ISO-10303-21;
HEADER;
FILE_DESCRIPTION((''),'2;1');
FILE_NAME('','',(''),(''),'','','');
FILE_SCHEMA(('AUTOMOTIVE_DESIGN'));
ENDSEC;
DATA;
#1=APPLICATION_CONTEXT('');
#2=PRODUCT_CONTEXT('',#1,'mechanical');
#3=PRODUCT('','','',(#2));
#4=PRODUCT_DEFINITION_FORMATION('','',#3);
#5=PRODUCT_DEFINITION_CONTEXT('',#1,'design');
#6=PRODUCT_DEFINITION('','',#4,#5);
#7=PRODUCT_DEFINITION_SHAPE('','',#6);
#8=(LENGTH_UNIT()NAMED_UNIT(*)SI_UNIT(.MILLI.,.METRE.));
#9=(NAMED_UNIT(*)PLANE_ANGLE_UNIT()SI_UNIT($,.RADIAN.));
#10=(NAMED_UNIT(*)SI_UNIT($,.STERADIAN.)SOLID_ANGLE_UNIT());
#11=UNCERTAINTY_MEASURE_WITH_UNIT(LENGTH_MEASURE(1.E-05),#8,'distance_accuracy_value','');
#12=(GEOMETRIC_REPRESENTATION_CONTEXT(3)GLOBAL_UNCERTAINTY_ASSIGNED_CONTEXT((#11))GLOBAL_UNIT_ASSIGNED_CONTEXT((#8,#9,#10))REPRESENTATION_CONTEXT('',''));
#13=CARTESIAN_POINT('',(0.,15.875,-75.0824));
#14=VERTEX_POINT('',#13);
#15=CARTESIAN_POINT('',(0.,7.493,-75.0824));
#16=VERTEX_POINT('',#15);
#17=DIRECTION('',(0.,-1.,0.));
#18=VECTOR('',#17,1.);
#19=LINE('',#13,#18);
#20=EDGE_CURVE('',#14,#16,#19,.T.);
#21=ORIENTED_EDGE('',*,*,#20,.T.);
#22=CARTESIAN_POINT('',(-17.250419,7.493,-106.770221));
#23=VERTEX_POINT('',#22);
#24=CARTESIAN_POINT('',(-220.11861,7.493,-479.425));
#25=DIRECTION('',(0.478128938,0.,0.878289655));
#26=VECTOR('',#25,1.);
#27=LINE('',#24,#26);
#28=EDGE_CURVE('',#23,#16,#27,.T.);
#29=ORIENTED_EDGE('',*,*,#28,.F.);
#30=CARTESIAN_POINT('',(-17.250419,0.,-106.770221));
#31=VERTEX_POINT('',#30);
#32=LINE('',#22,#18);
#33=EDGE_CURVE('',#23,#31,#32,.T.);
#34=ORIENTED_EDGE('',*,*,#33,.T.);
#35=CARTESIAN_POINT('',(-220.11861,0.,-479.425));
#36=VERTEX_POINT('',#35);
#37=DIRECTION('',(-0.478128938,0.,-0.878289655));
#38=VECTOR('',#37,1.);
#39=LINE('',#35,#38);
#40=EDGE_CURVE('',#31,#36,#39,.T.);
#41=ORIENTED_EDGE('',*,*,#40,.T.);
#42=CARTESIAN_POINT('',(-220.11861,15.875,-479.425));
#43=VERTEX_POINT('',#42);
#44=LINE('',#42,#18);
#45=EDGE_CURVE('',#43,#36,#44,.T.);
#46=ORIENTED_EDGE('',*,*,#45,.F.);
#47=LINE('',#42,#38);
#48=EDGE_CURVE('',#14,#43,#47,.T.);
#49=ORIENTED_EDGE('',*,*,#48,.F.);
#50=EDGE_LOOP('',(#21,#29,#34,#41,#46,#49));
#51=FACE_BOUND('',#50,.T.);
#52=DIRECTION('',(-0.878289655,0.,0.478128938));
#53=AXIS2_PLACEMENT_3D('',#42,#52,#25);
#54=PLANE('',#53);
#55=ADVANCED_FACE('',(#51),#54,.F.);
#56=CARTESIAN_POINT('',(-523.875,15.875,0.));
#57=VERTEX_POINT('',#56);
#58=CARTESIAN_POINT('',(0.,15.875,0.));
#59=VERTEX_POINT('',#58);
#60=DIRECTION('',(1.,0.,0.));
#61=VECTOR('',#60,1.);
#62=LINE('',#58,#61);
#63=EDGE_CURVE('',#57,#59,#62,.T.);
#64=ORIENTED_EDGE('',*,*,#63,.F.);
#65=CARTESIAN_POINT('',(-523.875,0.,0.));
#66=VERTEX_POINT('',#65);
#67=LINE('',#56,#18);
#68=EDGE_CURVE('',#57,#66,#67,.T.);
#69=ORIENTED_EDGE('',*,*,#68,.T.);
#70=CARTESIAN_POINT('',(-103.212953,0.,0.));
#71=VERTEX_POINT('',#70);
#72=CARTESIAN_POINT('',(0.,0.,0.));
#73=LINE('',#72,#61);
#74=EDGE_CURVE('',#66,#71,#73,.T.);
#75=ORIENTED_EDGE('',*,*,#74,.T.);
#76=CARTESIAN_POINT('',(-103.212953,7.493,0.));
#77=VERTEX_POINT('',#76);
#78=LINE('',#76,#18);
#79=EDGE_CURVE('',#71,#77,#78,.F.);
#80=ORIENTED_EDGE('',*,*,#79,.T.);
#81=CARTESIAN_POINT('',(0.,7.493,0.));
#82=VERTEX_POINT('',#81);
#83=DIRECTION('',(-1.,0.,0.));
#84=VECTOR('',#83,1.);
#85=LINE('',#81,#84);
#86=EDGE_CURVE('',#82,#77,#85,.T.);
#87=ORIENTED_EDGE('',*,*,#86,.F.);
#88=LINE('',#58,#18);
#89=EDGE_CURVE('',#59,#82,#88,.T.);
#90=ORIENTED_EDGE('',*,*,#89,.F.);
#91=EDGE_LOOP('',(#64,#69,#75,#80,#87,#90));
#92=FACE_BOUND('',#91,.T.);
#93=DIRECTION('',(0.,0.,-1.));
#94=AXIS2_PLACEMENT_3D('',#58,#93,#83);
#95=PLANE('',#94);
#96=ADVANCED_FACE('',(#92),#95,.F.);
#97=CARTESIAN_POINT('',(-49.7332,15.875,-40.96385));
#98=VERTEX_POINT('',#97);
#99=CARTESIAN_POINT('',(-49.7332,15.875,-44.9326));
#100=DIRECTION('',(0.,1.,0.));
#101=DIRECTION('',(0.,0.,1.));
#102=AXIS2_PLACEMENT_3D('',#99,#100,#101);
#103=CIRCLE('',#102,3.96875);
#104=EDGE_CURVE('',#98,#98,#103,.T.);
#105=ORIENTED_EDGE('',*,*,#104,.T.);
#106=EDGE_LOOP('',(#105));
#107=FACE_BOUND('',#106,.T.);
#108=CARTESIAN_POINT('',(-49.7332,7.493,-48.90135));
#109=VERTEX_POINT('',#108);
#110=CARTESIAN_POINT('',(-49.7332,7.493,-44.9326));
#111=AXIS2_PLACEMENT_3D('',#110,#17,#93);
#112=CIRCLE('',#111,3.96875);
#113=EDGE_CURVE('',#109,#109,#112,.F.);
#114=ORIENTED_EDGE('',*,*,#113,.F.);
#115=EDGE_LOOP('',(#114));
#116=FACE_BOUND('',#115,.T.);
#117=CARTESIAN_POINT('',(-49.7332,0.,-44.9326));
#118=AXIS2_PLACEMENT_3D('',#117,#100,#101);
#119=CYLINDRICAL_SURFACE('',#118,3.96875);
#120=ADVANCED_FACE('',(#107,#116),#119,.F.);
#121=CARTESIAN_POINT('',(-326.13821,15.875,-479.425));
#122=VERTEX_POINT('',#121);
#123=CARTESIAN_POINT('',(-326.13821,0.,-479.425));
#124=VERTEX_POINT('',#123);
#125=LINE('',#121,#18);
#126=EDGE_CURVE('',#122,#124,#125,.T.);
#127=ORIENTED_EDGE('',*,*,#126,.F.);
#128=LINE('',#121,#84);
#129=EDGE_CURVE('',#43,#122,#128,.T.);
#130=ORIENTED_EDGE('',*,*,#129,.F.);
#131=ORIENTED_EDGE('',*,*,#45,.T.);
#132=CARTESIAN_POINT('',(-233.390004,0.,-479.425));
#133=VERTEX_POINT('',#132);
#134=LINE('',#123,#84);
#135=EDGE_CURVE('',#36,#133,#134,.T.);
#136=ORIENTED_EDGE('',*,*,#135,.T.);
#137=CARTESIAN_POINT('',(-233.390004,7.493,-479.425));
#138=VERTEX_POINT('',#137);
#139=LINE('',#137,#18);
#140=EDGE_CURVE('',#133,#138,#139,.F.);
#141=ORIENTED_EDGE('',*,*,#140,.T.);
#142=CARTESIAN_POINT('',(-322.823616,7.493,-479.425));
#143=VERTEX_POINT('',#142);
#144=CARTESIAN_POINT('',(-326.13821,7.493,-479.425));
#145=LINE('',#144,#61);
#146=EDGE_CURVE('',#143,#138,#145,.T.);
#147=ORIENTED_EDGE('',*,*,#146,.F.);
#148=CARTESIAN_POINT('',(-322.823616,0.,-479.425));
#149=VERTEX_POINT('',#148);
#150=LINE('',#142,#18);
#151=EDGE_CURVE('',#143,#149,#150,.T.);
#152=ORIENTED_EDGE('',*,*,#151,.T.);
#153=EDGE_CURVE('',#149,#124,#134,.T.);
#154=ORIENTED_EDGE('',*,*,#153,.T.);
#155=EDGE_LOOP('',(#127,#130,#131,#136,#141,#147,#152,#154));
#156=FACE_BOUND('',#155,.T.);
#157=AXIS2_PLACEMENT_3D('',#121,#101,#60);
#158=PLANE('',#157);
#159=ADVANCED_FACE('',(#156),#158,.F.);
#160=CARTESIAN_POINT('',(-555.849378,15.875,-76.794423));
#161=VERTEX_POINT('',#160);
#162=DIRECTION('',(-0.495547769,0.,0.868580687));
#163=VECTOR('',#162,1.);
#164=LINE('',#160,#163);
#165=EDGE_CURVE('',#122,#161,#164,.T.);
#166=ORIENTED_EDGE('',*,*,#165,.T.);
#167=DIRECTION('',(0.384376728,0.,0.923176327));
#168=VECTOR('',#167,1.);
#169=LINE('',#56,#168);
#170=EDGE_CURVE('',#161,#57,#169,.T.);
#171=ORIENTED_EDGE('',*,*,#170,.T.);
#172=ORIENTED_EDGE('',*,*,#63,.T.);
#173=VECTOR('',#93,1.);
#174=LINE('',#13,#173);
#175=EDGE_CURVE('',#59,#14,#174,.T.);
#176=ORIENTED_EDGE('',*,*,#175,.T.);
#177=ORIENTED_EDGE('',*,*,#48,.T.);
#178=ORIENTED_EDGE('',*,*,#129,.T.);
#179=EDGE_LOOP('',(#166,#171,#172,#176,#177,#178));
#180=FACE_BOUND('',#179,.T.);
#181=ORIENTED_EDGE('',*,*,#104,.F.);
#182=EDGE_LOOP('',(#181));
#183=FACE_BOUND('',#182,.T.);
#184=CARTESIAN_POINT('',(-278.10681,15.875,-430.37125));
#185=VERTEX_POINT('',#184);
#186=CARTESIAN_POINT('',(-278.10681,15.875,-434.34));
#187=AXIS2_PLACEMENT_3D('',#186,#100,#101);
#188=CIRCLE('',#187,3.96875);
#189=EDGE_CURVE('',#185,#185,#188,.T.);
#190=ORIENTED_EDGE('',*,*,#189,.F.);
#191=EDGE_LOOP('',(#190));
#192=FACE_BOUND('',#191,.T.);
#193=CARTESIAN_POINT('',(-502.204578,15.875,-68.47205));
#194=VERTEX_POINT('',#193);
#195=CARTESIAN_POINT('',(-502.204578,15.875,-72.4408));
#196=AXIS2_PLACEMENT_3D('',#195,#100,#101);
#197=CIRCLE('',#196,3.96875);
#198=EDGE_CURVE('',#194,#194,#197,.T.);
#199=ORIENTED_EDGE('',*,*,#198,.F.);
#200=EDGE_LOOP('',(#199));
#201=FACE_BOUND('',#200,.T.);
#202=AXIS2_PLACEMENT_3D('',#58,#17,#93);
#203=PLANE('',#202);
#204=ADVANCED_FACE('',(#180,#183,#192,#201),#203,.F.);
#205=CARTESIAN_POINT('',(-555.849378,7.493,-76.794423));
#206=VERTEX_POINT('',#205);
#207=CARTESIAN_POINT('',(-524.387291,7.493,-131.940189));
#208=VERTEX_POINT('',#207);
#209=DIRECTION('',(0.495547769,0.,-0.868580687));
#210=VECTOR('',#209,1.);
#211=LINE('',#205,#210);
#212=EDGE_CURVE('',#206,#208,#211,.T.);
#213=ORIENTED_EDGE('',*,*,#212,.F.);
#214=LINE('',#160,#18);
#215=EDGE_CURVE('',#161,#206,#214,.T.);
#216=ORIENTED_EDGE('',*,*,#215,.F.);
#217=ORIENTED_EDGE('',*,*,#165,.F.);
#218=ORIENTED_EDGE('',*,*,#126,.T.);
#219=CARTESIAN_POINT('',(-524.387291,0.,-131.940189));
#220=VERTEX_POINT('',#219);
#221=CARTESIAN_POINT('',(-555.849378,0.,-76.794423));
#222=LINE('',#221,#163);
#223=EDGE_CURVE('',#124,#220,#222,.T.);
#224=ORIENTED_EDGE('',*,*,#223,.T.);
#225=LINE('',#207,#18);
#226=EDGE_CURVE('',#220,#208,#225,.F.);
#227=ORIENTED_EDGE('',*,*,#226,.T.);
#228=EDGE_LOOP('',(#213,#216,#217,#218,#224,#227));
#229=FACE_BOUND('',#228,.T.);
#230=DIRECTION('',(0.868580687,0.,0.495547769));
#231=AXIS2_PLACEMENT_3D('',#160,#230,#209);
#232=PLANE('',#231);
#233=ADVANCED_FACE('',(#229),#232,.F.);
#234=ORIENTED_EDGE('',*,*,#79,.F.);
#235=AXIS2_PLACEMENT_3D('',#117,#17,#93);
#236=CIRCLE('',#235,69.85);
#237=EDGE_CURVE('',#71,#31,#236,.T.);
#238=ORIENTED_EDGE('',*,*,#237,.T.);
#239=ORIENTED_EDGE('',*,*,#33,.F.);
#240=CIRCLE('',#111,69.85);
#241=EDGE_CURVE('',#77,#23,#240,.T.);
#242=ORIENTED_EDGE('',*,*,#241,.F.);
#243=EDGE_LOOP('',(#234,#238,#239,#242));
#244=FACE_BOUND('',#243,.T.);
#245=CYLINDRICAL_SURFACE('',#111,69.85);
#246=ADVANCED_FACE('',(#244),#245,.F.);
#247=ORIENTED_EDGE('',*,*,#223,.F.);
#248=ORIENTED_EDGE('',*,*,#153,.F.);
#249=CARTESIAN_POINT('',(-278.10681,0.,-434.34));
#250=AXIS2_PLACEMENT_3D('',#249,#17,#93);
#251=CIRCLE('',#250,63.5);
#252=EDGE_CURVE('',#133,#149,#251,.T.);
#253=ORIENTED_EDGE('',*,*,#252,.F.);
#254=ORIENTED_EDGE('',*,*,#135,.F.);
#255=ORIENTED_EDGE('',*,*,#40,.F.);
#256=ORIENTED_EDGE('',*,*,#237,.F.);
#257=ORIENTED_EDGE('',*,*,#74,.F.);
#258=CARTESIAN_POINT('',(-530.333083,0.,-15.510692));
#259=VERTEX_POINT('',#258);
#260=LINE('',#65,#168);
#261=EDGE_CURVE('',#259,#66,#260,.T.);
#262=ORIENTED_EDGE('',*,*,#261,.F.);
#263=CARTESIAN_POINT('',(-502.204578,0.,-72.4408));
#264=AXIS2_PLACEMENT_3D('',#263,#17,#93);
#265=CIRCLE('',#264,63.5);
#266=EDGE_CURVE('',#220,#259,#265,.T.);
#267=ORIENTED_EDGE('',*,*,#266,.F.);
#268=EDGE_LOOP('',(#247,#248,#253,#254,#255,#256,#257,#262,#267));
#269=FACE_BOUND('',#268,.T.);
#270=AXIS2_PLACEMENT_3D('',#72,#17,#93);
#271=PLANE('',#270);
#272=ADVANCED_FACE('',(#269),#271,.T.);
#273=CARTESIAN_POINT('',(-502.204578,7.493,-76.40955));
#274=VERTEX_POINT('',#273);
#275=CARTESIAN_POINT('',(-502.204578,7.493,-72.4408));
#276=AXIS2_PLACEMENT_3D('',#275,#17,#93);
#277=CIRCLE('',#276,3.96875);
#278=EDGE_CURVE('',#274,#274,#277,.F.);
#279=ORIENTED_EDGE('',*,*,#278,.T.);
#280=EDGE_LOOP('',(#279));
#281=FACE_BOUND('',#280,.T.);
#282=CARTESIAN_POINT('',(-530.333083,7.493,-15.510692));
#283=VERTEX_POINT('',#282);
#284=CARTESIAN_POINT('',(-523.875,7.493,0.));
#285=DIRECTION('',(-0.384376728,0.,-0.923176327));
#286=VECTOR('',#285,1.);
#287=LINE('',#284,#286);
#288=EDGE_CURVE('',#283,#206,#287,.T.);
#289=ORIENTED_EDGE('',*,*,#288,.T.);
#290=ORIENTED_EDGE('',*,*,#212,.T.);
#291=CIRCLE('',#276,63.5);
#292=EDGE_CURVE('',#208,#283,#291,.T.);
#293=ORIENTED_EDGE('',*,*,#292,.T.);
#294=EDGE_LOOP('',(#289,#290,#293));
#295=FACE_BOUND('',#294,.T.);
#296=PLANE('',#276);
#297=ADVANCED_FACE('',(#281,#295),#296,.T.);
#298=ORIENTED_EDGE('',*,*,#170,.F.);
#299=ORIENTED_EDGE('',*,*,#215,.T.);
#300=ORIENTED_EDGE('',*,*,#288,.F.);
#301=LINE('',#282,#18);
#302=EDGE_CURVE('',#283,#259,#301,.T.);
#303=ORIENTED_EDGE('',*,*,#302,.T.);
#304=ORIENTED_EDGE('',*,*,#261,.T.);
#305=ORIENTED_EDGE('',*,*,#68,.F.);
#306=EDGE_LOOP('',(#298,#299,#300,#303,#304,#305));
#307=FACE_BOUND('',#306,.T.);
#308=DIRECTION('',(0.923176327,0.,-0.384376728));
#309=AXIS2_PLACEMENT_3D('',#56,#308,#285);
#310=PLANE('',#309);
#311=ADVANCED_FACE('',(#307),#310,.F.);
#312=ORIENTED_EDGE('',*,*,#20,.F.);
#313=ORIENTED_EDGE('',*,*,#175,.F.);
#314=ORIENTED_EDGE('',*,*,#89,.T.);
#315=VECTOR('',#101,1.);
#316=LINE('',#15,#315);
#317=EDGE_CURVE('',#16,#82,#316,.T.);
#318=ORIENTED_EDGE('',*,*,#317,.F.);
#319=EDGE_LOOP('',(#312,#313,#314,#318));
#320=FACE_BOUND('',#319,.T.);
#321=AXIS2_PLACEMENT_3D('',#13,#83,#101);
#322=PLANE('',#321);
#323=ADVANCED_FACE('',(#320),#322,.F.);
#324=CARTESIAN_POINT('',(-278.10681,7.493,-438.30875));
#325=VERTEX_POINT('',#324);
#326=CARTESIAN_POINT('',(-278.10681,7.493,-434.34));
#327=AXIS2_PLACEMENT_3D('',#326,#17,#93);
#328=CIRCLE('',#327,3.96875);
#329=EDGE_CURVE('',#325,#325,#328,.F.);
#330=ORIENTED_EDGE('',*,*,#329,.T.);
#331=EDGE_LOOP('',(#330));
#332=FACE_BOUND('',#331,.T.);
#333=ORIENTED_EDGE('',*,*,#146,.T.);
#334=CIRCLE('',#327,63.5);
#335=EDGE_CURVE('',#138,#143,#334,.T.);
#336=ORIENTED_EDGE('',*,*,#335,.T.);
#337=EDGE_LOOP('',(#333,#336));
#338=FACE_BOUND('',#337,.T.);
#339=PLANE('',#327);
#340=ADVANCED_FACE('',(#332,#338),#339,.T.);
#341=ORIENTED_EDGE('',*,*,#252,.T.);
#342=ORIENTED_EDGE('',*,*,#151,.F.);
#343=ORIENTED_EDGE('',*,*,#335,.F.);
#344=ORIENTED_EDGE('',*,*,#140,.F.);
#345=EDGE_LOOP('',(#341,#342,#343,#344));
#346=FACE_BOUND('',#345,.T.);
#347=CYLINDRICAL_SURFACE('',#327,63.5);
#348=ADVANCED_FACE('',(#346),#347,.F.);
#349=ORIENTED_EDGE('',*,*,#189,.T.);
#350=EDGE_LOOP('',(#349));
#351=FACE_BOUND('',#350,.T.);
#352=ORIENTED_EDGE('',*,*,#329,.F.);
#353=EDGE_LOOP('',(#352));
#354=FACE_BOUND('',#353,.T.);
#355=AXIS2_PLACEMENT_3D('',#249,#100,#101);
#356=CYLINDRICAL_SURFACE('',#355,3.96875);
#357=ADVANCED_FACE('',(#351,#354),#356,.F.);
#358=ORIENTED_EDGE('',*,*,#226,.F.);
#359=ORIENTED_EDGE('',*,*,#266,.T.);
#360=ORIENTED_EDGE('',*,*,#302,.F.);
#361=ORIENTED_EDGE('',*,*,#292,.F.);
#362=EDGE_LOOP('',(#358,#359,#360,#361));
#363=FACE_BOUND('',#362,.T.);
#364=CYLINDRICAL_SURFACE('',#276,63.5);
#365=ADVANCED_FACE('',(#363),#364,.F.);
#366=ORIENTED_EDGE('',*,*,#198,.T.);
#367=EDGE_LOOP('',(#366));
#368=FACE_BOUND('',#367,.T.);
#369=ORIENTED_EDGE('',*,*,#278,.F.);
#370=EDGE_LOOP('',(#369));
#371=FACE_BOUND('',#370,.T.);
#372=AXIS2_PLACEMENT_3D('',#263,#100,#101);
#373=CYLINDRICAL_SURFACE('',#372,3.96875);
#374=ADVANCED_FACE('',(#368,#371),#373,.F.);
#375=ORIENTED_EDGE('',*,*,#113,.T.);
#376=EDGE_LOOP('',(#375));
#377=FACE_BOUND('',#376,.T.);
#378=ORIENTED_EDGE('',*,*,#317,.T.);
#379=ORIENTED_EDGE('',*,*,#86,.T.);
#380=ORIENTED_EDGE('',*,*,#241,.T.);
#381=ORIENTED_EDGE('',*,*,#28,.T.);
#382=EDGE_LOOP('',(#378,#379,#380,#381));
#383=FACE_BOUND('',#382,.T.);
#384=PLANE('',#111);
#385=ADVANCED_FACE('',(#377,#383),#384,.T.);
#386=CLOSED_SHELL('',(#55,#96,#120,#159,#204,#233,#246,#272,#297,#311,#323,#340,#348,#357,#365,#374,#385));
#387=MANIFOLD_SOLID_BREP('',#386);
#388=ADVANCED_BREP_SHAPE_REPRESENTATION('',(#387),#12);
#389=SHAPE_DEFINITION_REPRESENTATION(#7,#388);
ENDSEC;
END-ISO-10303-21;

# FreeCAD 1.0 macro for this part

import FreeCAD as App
import Part
import Sketcher
Q = App.Units.Quantity


def add_polygon(sketch, points):
    """Adds a closed chain of lines whose ends are joined by coincident constraints."""
    first, n = sketch.GeometryCount, len(points)
    for a, b in zip(points, points[1:] + points[:1]):
        sketch.addGeometry(Part.LineSegment(App.Vector(*a, 0), App.Vector(*b, 0)), False)
    for i in range(n):
        sketch.addConstraint(Sketcher.Constraint("Coincident", first + i, 2, first + (i + 1) % n, 1))

doc = App.newDocument("Part")
params = doc.addObject("Spreadsheet::Sheet", "Params")
for row, (alias, value) in enumerate([
    ("sketch1_length", "18.25 in"),
    ("sketch1_width", "20.625 in"),
    ("sketch1_width2", "4.174 in"),
    ("sketch1_height", "2.956 in"),
    ("sketch1_length2", "18.125 in"),
    ("pad1_length", "0.625 in"),
    ("sketch2_diameter", "0.3125 in"),
    ("sketch3_diameter", "5 in"),
    ("sketch3_diameter2", "5.5 in"),
    ("pocket2_length", "0.295 in"),
], start=1):
    params.set(f"A{row}", alias)
    params.set(f"B{row}", "=" + value)
    params.setAlias(f"B{row}", alias)

body = doc.addObject("PartDesign::Body", "Body")

sketch1 = body.newObject("Sketcher::SketchObject", "Sketch")
sketch1.AttachmentSupport = (doc.getObject("XZ_Plane"), [""])
sketch1.MapMode = "FlatFace"
add_polygon(sketch1, [(-524, 0), (0, 0), (0, -75), (-220, -479), (-326, -479), (-556, -77)])
sketch1.addConstraint(Sketcher.Constraint("Horizontal", 0))
sketch1.addConstraint(Sketcher.Constraint("Vertical", 1))
sketch1.addConstraint(Sketcher.Constraint("Horizontal", 3))
sketch1.addConstraint(Sketcher.Constraint("Coincident", 0, 2, -1, 1))
sketch1.addConstraint(Sketcher.Constraint("Distance", 4, Q("18.25 in")))
sketch1.addConstraint(Sketcher.Constraint("DistanceX", 0, 1, 0, 2, Q("20.625 in")))
sketch1.addConstraint(Sketcher.Constraint("DistanceX", 3, 2, 3, 1, Q("4.174 in")))
sketch1.addConstraint(Sketcher.Constraint("DistanceY", 1, 2, 1, 1, Q("2.956 in")))
sketch1.addConstraint(Sketcher.Constraint("Distance", 2, Q("18.125 in")))
sketch1.addConstraint(Sketcher.Constraint("Distance", 5, Q("3.275 in")))
sketch1.addConstraint(Sketcher.Constraint("DistanceY", 2, 2, -1, 1, Q("18.875 in")))
sketch1.setExpression("Constraints[10]", "Params.sketch1_length")
sketch1.setExpression("Constraints[11]", "Params.sketch1_width")
sketch1.setExpression("Constraints[12]", "Params.sketch1_width2")
sketch1.setExpression("Constraints[13]", "Params.sketch1_height")
sketch1.setExpression("Constraints[14]", "Params.sketch1_length2")
pad1 = body.newObject("PartDesign::Pad", "Pad")
pad1.Profile = sketch1
pad1.setExpression("Length", "Params.pad1_length")
pad1.Reversed = True

sketch2 = body.newObject("Sketcher::SketchObject", "Sketch001")
sketch2.AttachmentSupport = (doc.getObject("XZ_Plane"), [""])
sketch2.MapMode = "FlatFace"
sketch2.AttachmentOffset = App.Placement(App.Vector(0, 0, -0.625 * 25.4), App.Rotation())
sketch2.addGeometry(Part.Circle(App.Vector(-278.1, -434.3, 0), App.Vector(0, 0, 1), 4), False)
sketch2.addGeometry(Part.Circle(App.Vector(-502.2, -72.4, 0), App.Vector(0, 0, 1), 4), False)
sketch2.addGeometry(Part.Circle(App.Vector(-49.7, -44.9, 0), App.Vector(0, 0, 1), 4), False)
sketch2.addConstraint(Sketcher.Constraint("Equal", 0, 1))
sketch2.addConstraint(Sketcher.Constraint("Equal", 1, 2))
sketch2.addConstraint(Sketcher.Constraint("Diameter", 0, Q("0.3125 in")))
sketch2.addConstraint(Sketcher.Constraint("DistanceY", 0, 3, -1, 1, Q("17.1 in")))
sketch2.addConstraint(Sketcher.Constraint("DistanceY", 1, 3, -1, 1, Q("2.852 in")))
sketch2.addConstraint(Sketcher.Constraint("DistanceX", 2, 3, -1, 1, Q("1.958 in")))
sketch2.addConstraint(Sketcher.Constraint("DistanceY", 2, 3, -1, 1, Q("1.769 in")))
sketch2.addConstraint(Sketcher.Constraint("DistanceX", 0, 3, -1, 1, Q("278.10681 mm")))
sketch2.addConstraint(Sketcher.Constraint("DistanceX", 1, 3, -1, 1, Q("502.204578 mm")))
sketch2.setExpression("Constraints[2]", "Params.sketch2_diameter")
pocket1 = body.newObject("PartDesign::Pocket", "Pocket")
pocket1.Profile = sketch2
pocket1.Type = "ThroughAll"
pocket1.Reversed = True

sketch3 = body.newObject("Sketcher::SketchObject", "Sketch002")
sketch3.AttachmentSupport = (doc.getObject("XZ_Plane"), [""])
sketch3.MapMode = "FlatFace"
sketch3.addGeometry(Part.Circle(App.Vector(-502, -72, 0), App.Vector(0, 0, 1), 64), False)
sketch3.addGeometry(Part.Circle(App.Vector(-50, -45, 0), App.Vector(0, 0, 1), 70), False)
sketch3.addGeometry(Part.Circle(App.Vector(-278, -434, 0), App.Vector(0, 0, 1), 64), False)
sketch3.addConstraint(Sketcher.Constraint("Equal", 0, 2))
sketch3.addConstraint(Sketcher.Constraint("Diameter", 0, Q("5 in")))
sketch3.addConstraint(Sketcher.Constraint("Diameter", 1, Q("5.5 in")))
sketch3.addConstraint(Sketcher.Constraint("DistanceY", 2, 3, -1, 1, Q("17.1 in")))
sketch3.addConstraint(Sketcher.Constraint("DistanceY", 0, 3, -1, 1, Q("2.852 in")))
sketch3.addConstraint(Sketcher.Constraint("DistanceX", 1, 3, -1, 1, Q("1.958 in")))
sketch3.addConstraint(Sketcher.Constraint("DistanceY", 1, 3, -1, 1, Q("1.769 in")))
sketch3.addConstraint(Sketcher.Constraint("DistanceX", 0, 3, -1, 1, Q("502.204578 mm")))
sketch3.addConstraint(Sketcher.Constraint("DistanceX", 2, 3, -1, 1, Q("278.10681 mm")))
sketch3.setExpression("Constraints[1]", "Params.sketch3_diameter")
sketch3.setExpression("Constraints[2]", "Params.sketch3_diameter2")
pocket2 = body.newObject("PartDesign::Pocket", "Pocket001")
pocket2.Profile = sketch3
pocket2.setExpression("Length", "Params.pocket2_length")

doc.recompute()
